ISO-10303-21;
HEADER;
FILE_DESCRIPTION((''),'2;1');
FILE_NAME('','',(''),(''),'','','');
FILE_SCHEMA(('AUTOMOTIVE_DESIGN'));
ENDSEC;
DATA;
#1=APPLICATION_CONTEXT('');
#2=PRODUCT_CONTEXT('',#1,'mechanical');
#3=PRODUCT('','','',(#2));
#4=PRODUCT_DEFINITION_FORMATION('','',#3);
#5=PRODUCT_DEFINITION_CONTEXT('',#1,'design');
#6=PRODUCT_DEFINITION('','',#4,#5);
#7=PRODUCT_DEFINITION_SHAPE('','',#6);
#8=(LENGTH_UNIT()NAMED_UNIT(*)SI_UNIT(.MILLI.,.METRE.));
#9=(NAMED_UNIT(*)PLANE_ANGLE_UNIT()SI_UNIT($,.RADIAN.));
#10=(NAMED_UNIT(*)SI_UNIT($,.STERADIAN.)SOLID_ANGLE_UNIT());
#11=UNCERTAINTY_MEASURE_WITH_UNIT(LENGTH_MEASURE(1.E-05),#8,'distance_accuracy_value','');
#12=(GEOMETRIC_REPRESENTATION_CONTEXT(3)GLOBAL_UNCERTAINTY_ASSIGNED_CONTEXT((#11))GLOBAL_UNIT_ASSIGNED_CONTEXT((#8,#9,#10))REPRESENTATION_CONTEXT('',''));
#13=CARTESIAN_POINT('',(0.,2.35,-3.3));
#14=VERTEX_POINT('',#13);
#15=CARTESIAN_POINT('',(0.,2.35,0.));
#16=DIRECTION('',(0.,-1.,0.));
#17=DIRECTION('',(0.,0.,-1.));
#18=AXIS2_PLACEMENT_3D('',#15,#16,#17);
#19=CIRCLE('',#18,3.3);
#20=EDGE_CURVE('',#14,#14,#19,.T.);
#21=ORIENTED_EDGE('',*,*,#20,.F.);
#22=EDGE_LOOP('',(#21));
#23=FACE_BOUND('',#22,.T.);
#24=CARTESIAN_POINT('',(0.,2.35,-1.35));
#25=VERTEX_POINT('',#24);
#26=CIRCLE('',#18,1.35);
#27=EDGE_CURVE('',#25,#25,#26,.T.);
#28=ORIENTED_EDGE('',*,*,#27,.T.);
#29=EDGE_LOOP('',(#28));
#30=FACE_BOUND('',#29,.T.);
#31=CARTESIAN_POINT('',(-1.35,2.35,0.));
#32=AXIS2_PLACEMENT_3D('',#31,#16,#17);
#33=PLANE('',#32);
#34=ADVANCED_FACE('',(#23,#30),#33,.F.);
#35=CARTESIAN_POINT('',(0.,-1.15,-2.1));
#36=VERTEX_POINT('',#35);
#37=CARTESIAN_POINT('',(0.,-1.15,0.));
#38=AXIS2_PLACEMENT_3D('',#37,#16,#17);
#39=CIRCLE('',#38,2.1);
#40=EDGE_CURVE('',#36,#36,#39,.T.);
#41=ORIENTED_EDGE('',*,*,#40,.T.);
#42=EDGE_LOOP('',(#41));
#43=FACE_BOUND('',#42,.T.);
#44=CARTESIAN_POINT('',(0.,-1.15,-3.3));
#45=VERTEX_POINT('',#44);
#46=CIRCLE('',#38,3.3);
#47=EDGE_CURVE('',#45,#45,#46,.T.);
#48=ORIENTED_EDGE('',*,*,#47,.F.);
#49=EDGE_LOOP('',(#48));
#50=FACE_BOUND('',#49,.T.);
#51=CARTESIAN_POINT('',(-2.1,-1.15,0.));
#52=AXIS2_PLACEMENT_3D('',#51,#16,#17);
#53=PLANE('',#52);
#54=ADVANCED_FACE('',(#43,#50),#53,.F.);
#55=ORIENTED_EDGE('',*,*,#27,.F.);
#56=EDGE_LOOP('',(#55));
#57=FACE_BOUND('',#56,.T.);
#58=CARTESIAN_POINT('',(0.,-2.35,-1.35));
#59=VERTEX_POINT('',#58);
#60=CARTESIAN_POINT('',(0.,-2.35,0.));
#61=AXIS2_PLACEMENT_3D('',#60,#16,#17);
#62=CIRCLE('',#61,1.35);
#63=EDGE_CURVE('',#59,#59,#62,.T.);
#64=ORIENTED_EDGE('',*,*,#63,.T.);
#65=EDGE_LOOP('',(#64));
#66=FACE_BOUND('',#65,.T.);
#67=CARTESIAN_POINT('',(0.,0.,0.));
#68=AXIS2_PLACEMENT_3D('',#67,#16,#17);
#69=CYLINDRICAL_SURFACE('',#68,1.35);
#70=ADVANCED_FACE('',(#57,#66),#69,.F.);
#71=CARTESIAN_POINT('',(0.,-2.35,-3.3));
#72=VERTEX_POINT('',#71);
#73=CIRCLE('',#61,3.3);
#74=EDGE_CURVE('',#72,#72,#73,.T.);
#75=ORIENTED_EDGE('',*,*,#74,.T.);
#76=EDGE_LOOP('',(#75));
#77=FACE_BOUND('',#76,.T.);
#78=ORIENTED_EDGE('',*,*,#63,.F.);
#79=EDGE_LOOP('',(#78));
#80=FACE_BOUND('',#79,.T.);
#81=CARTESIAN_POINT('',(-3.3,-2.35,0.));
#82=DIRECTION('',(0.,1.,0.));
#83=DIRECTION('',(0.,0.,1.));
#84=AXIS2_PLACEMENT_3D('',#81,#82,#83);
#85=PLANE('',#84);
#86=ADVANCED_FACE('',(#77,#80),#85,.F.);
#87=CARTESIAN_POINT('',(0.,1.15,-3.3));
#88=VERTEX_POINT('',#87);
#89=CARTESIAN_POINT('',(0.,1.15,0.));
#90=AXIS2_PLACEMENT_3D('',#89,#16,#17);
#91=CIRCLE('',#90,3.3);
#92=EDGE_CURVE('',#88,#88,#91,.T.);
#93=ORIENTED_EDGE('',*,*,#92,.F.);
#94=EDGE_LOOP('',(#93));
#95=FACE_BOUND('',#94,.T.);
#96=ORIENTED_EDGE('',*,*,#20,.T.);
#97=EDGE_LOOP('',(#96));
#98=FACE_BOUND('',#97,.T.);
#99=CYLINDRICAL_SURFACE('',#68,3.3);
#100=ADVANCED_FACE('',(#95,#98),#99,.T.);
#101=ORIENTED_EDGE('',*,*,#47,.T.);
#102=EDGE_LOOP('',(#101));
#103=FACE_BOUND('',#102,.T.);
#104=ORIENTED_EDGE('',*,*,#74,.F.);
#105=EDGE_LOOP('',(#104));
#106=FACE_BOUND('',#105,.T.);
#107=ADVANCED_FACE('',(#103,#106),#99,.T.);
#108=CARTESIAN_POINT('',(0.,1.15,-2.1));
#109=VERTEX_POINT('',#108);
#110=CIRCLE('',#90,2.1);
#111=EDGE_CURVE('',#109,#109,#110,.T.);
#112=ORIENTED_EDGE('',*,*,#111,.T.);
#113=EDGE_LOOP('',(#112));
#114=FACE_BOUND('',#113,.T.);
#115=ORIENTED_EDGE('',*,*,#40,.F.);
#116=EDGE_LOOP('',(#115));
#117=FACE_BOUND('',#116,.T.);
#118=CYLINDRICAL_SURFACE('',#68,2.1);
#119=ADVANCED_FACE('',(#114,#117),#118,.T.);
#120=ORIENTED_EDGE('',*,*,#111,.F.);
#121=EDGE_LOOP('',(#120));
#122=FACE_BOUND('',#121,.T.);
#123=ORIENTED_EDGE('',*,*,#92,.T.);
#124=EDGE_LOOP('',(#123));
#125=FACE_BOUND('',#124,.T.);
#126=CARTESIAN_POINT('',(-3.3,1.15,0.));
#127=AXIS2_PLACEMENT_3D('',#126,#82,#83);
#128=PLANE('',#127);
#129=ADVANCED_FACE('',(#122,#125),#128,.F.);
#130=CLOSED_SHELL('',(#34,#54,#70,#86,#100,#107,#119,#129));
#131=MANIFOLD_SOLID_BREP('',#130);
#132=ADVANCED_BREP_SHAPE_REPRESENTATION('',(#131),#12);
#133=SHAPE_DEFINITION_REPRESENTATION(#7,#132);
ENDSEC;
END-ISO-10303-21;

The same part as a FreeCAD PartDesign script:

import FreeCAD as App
import Part
import Sketcher
Q = App.Units.Quantity

doc = App.newDocument("Part")
body = doc.addObject("PartDesign::Body", "Body")

sketch1 = doc.addObject("Sketcher::SketchObject", "Sketch")
body.addObject(sketch1)
sketch1.AttachmentSupport = (doc.XY_Plane, [""])
sketch1.MapMode = "FlatFace"
sketch1.addGeometry([
    Part.LineSegment(App.Vector(-1.4, 2.4, 0), App.Vector(-3.3, 2.4, 0)),
    Part.LineSegment(App.Vector(-3.3, 2.4, 0), App.Vector(-3.3, 1.1, 0)),
    Part.LineSegment(App.Vector(-3.3, 1.1, 0), App.Vector(-2.1, 1.1, 0)),
    Part.LineSegment(App.Vector(-2.1, 1.1, 0), App.Vector(-2.1, -1.1, 0)),
    Part.LineSegment(App.Vector(-2.1, -1.1, 0), App.Vector(-3.3, -1.1, 0)),
    Part.LineSegment(App.Vector(-3.3, -1.1, 0), App.Vector(-3.3, -2.4, 0)),
    Part.LineSegment(App.Vector(-3.3, -2.4, 0), App.Vector(-1.4, -2.4, 0)),
    Part.LineSegment(App.Vector(-1.4, -2.4, 0), App.Vector(-1.4, 2.4, 0)),
], False)
sketch1.addConstraint([
    Sketcher.Constraint("Coincident", 0, 2, 1, 1),
    Sketcher.Constraint("Coincident", 1, 2, 2, 1),
    Sketcher.Constraint("Coincident", 2, 2, 3, 1),
    Sketcher.Constraint("Coincident", 3, 2, 4, 1),
    Sketcher.Constraint("Coincident", 4, 2, 5, 1),
    Sketcher.Constraint("Coincident", 5, 2, 6, 1),
    Sketcher.Constraint("Coincident", 6, 2, 7, 1),
    Sketcher.Constraint("Coincident", 7, 2, 0, 1),
    Sketcher.Constraint("Horizontal", 0),
    Sketcher.Constraint("Vertical", 1),
    Sketcher.Constraint("Horizontal", 2),
    Sketcher.Constraint("Vertical", 3),
    Sketcher.Constraint("Horizontal", 4),
    Sketcher.Constraint("Vertical", 5),
    Sketcher.Constraint("Horizontal", 6),
    Sketcher.Constraint("Vertical", 7),
    Sketcher.Constraint("Symmetric", 1, 2, 4, 2, -1),
    Sketcher.Constraint("Equal", 4, 1),
    Sketcher.Constraint("Equal", 1, 5),
    Sketcher.Constraint("DistanceX", 2, 1, 2, 2, Q("1.2 mm")),
    Sketcher.Constraint("DistanceY", 3, 2, 3, 1, Q("2.3 mm")),
    Sketcher.Constraint("DistanceX", 0, 2, 0, 1, Q("1.95 mm")),
    Sketcher.Constraint("DistanceX", 0, 2, -1, 1, Q("3.3 mm")),
])
revolution = doc.addObject("PartDesign::Revolution", "Revolution")
body.addObject(revolution)
revolution.Profile = sketch1
revolution.ReferenceAxis = (sketch1, ["V_Axis"])
revolution.Angle = 360

doc.recompute()
